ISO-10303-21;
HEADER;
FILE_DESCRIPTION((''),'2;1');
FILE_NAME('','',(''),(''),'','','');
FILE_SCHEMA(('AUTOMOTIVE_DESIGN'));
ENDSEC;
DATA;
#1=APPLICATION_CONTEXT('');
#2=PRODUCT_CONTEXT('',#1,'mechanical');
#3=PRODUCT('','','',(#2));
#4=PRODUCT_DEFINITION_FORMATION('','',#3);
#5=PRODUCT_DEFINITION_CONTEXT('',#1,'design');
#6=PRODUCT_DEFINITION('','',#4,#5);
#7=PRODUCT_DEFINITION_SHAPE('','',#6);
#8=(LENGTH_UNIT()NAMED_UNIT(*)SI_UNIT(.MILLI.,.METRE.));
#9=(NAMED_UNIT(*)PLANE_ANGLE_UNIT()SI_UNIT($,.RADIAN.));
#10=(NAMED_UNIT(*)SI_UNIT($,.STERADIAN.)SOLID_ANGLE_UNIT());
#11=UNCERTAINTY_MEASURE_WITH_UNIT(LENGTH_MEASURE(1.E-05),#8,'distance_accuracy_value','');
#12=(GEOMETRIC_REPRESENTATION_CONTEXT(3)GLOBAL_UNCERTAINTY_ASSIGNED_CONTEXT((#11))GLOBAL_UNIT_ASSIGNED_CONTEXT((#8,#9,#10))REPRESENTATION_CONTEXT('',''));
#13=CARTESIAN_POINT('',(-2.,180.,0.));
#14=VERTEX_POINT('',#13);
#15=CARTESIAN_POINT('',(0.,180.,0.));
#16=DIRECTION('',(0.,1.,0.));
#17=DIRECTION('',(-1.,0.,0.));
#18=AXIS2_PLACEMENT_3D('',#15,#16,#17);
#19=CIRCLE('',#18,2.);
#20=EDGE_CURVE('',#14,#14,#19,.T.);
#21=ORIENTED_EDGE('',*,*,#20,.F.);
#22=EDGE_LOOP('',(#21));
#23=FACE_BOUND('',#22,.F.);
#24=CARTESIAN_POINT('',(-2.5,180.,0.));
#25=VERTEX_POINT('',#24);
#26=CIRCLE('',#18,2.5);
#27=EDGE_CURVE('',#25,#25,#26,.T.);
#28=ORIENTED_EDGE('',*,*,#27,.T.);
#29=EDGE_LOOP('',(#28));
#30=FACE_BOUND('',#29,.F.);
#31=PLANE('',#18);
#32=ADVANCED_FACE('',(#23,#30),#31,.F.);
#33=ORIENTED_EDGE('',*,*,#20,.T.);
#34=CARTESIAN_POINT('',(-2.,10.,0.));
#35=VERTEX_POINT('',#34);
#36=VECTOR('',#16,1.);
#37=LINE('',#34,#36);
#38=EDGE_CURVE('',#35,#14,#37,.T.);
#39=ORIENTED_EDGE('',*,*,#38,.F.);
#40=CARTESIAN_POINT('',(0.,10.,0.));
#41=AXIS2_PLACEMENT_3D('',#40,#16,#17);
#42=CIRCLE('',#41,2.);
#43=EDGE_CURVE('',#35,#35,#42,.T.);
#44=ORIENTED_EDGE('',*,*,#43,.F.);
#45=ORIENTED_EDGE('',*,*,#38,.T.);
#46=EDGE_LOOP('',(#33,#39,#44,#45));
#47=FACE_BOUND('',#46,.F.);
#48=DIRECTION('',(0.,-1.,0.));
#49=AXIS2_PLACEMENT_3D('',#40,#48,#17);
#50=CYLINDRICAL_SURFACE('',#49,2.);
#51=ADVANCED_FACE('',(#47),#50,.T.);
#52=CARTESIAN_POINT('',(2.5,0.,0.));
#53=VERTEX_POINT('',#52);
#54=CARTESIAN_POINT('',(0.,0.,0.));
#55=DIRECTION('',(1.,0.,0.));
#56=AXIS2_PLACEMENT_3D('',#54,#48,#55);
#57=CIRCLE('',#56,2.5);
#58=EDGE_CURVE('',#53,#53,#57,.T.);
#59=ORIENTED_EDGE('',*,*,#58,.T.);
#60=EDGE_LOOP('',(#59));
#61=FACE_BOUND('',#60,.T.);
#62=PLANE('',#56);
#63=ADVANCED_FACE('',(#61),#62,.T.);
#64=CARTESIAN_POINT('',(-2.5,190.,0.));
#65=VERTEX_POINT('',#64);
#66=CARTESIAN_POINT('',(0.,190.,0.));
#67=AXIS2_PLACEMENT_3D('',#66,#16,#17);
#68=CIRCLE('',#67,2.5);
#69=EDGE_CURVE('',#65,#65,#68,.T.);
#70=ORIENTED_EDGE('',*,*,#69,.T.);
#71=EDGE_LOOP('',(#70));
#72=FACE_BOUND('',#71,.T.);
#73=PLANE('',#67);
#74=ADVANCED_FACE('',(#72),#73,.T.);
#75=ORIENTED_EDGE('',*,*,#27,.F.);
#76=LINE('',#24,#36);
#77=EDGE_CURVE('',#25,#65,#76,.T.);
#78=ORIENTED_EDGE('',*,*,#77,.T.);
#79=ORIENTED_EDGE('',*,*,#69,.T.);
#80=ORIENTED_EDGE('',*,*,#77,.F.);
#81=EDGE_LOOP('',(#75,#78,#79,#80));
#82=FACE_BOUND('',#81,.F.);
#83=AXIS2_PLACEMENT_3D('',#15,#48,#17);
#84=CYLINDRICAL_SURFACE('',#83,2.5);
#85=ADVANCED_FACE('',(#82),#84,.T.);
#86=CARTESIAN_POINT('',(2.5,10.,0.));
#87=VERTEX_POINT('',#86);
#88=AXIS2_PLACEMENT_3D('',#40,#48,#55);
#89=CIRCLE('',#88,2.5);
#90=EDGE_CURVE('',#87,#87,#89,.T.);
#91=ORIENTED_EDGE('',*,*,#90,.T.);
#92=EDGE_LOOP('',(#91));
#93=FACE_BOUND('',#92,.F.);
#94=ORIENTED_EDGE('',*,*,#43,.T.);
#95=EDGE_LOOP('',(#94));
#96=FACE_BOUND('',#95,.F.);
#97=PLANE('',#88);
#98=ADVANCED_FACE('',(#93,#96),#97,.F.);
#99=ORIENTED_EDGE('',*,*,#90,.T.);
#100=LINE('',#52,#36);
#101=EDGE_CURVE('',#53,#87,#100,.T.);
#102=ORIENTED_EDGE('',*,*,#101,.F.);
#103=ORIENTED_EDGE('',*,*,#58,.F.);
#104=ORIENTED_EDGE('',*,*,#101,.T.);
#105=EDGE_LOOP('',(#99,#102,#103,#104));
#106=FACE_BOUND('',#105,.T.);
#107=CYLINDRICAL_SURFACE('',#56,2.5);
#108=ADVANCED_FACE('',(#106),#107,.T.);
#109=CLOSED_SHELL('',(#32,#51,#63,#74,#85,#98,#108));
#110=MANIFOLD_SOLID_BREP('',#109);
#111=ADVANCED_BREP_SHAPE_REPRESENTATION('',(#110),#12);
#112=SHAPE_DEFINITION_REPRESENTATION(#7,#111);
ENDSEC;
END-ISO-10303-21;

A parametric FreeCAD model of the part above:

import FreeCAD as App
import Part
import Sketcher

V = App.Vector

doc = App.newDocument("Part")
body = doc.addObject("PartDesign::Body", "Body")

sketch1 = body.newObject("Sketcher::SketchObject", "Sketch")
sketch1.AttachmentSupport = (doc.getObject("XZ_Plane"), [""])
sketch1.MapMode = "FlatFace"
sketch1.addGeometry(Part.Circle(V(0, 0, 0), V(0, 0, 1), 2.5), False)
sketch1.addConstraint([
    Sketcher.Constraint("Coincident", 0, 3, -1, 1),
    Sketcher.Constraint("Diameter", 0, 5.0),
])
pad1 = body.newObject("PartDesign::Pad", "Pad")
pad1.Profile = sketch1
pad1.Length = 10
pad1.Reversed = True

sketch2 = body.newObject("Sketcher::SketchObject", "Sketch001")
sketch2.AttachmentSupport = (doc.getObject("XZ_Plane"), [""])
sketch2.MapMode = "FlatFace"
sketch2.AttachmentOffset = App.Placement(V(0, 0, -10), App.Rotation())
sketch2.addGeometry(Part.Circle(V(0, 0, 0), V(0, 0, 1), 2), False)
sketch2.addConstraint([
    Sketcher.Constraint("Coincident", 0, 3, -1, 1),
    Sketcher.Constraint("Diameter", 0, 4.0),
])
pad2 = body.newObject("PartDesign::Pad", "Pad001")
pad2.Profile = sketch2
pad2.Length = 170
pad2.Reversed = True

sketch3 = body.newObject("Sketcher::SketchObject", "Sketch002")
sketch3.AttachmentSupport = (doc.getObject("XZ_Plane"), [""])
sketch3.MapMode = "FlatFace"
sketch3.AttachmentOffset = App.Placement(V(0, 0, -180), App.Rotation())
sketch3.addGeometry(Part.Circle(V(0, 0, 0), V(0, 0, 1), 2.5), False)
sketch3.addConstraint([
    Sketcher.Constraint("Coincident", 0, 3, -1, 1),
    Sketcher.Constraint("Diameter", 0, 5.0),
])
pad3 = body.newObject("PartDesign::Pad", "Pad002")
pad3.Profile = sketch3
pad3.Length = 10
pad3.Reversed = True

doc.recompute()
